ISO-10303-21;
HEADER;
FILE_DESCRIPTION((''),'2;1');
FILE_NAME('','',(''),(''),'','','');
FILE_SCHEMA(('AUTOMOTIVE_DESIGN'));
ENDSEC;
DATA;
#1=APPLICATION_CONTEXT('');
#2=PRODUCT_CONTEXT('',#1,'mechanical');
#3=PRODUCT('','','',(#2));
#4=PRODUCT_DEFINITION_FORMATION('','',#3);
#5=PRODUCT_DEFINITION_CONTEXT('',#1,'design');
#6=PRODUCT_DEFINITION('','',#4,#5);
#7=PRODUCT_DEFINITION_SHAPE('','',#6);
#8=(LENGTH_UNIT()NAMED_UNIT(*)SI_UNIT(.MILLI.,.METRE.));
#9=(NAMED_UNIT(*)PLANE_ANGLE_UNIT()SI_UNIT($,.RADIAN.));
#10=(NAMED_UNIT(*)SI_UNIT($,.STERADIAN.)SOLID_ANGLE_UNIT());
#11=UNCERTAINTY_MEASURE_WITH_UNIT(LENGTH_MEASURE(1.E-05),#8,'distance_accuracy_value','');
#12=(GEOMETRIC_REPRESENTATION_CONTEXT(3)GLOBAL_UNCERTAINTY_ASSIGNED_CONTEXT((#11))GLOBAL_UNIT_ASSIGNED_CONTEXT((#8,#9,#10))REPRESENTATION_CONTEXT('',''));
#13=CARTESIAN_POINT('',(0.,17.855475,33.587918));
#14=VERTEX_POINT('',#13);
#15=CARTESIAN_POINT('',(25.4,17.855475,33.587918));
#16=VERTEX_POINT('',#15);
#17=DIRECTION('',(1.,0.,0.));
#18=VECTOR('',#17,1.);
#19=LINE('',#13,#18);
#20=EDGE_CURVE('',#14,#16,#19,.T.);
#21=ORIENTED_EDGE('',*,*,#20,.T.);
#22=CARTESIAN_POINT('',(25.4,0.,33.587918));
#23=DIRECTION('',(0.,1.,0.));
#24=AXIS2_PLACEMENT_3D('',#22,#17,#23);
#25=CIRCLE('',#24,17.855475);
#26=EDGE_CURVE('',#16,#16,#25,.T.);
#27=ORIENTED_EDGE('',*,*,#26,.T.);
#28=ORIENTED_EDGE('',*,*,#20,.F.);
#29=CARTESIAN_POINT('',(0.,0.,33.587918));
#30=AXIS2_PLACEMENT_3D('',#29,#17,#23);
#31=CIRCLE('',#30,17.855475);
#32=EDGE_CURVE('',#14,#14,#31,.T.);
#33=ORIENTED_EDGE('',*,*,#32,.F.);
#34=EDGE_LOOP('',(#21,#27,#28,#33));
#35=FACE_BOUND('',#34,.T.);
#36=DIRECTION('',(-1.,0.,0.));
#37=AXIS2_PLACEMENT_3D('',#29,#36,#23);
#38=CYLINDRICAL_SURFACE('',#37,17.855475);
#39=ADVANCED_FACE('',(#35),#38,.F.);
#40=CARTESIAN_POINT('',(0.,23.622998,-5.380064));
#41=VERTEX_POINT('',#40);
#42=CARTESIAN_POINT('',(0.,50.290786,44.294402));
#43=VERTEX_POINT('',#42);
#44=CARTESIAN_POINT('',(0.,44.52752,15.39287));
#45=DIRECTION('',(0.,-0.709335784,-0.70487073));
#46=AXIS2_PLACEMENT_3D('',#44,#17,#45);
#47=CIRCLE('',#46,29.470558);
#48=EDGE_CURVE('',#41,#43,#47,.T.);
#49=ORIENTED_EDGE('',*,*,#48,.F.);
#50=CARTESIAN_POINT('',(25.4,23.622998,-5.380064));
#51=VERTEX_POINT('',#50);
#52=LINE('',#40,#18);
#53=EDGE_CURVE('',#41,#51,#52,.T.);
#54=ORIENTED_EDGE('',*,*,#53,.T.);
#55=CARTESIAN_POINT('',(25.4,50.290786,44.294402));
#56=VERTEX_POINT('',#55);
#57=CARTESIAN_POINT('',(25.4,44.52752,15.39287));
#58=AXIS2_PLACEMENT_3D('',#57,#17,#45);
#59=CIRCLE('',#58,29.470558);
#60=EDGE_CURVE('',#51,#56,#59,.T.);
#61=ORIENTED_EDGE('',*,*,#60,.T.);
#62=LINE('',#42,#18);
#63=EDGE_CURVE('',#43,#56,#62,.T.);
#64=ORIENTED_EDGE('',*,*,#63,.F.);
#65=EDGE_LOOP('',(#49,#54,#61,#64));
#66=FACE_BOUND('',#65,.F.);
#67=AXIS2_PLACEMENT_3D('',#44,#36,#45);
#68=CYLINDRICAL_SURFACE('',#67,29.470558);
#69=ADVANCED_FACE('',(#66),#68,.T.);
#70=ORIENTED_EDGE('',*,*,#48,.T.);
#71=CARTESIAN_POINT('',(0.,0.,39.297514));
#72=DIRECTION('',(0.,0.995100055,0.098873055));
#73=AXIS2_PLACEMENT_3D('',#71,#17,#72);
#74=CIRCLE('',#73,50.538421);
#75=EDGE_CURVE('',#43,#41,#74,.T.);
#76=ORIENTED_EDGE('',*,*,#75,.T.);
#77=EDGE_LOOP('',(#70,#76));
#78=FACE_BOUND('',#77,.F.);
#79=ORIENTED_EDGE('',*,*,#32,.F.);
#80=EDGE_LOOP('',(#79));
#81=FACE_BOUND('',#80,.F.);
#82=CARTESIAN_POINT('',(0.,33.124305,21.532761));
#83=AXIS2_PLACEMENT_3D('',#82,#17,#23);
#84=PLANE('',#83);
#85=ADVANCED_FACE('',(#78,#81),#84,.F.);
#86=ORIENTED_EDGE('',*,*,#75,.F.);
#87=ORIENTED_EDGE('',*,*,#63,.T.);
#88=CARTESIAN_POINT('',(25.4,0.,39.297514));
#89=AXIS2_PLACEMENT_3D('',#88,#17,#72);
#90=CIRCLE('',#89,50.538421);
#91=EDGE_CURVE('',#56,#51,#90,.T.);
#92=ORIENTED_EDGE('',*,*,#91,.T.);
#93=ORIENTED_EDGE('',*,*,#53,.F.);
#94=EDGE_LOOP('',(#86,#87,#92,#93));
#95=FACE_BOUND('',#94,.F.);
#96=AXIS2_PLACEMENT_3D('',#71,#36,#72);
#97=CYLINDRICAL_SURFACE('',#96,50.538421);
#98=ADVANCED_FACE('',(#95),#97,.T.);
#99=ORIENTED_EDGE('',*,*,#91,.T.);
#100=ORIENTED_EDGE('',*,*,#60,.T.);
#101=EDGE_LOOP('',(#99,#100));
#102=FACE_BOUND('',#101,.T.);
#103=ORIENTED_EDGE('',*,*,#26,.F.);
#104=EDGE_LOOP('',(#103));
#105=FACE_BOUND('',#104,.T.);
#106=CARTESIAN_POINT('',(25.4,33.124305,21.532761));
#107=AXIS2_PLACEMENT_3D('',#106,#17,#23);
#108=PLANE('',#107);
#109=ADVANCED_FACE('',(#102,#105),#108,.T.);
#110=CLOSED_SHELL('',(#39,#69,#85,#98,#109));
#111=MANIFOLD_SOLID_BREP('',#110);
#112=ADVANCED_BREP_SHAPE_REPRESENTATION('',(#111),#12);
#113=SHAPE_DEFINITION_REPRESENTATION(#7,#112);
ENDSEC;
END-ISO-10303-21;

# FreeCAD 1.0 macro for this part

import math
import FreeCAD as App
import Part
import Sketcher

V = App.Vector
Q = App.Units.Quantity

doc = App.newDocument("Part")
body = doc.addObject("PartDesign::Body", "Body")

sketch1 = body.newObject("Sketcher::SketchObject", "Sketch")
sketch1.AttachmentSupport = (doc.getObject("YZ_Plane"), [""])
sketch1.MapMode = "FlatFace"
sketch1.addGeometry([
    Part.ArcOfCircle(Part.Circle(V(45, 15, 0), V(0, 0, 1), 29), math.radians(-135), math.radians(79)),
    Part.ArcOfCircle(Part.Circle(V(0, 39, 0), V(0, 0, 1), 51), math.radians(6), math.radians(298)),
    Part.Circle(V(0, 34, 0), V(0, 0, 1), 18),
], False)
sketch1.addConstraint([
    Sketcher.Constraint("Coincident", 0, 1, 1, 2),
    Sketcher.Constraint("Coincident", 1, 1, 0, 2),
    Sketcher.Constraint("PointOnObject", 1, 3, -2),
    Sketcher.Constraint("PointOnObject", 2, 3, -2),
    Sketcher.Constraint("Diameter", 2, 35.71095),
    Sketcher.Constraint("Radius", 0, 29.470558),
    Sketcher.Constraint("Radius", 1, 50.538421),
    Sketcher.Constraint("DistanceX", -1, 1, 0, 1, 23.622998),
    Sketcher.Constraint("DistanceY", -1, 1, 1, 1, 44.294402),
    Sketcher.Constraint("DistanceX", -1, 1, 0, 3, 44.52752),
    Sketcher.Constraint("DistanceY", 0, 3, 2, 3, 18.195048),
])
pad1 = body.newObject("PartDesign::Pad", "Pad")
pad1.Profile = sketch1
pad1.Length = Q("1 in")

doc.recompute()
